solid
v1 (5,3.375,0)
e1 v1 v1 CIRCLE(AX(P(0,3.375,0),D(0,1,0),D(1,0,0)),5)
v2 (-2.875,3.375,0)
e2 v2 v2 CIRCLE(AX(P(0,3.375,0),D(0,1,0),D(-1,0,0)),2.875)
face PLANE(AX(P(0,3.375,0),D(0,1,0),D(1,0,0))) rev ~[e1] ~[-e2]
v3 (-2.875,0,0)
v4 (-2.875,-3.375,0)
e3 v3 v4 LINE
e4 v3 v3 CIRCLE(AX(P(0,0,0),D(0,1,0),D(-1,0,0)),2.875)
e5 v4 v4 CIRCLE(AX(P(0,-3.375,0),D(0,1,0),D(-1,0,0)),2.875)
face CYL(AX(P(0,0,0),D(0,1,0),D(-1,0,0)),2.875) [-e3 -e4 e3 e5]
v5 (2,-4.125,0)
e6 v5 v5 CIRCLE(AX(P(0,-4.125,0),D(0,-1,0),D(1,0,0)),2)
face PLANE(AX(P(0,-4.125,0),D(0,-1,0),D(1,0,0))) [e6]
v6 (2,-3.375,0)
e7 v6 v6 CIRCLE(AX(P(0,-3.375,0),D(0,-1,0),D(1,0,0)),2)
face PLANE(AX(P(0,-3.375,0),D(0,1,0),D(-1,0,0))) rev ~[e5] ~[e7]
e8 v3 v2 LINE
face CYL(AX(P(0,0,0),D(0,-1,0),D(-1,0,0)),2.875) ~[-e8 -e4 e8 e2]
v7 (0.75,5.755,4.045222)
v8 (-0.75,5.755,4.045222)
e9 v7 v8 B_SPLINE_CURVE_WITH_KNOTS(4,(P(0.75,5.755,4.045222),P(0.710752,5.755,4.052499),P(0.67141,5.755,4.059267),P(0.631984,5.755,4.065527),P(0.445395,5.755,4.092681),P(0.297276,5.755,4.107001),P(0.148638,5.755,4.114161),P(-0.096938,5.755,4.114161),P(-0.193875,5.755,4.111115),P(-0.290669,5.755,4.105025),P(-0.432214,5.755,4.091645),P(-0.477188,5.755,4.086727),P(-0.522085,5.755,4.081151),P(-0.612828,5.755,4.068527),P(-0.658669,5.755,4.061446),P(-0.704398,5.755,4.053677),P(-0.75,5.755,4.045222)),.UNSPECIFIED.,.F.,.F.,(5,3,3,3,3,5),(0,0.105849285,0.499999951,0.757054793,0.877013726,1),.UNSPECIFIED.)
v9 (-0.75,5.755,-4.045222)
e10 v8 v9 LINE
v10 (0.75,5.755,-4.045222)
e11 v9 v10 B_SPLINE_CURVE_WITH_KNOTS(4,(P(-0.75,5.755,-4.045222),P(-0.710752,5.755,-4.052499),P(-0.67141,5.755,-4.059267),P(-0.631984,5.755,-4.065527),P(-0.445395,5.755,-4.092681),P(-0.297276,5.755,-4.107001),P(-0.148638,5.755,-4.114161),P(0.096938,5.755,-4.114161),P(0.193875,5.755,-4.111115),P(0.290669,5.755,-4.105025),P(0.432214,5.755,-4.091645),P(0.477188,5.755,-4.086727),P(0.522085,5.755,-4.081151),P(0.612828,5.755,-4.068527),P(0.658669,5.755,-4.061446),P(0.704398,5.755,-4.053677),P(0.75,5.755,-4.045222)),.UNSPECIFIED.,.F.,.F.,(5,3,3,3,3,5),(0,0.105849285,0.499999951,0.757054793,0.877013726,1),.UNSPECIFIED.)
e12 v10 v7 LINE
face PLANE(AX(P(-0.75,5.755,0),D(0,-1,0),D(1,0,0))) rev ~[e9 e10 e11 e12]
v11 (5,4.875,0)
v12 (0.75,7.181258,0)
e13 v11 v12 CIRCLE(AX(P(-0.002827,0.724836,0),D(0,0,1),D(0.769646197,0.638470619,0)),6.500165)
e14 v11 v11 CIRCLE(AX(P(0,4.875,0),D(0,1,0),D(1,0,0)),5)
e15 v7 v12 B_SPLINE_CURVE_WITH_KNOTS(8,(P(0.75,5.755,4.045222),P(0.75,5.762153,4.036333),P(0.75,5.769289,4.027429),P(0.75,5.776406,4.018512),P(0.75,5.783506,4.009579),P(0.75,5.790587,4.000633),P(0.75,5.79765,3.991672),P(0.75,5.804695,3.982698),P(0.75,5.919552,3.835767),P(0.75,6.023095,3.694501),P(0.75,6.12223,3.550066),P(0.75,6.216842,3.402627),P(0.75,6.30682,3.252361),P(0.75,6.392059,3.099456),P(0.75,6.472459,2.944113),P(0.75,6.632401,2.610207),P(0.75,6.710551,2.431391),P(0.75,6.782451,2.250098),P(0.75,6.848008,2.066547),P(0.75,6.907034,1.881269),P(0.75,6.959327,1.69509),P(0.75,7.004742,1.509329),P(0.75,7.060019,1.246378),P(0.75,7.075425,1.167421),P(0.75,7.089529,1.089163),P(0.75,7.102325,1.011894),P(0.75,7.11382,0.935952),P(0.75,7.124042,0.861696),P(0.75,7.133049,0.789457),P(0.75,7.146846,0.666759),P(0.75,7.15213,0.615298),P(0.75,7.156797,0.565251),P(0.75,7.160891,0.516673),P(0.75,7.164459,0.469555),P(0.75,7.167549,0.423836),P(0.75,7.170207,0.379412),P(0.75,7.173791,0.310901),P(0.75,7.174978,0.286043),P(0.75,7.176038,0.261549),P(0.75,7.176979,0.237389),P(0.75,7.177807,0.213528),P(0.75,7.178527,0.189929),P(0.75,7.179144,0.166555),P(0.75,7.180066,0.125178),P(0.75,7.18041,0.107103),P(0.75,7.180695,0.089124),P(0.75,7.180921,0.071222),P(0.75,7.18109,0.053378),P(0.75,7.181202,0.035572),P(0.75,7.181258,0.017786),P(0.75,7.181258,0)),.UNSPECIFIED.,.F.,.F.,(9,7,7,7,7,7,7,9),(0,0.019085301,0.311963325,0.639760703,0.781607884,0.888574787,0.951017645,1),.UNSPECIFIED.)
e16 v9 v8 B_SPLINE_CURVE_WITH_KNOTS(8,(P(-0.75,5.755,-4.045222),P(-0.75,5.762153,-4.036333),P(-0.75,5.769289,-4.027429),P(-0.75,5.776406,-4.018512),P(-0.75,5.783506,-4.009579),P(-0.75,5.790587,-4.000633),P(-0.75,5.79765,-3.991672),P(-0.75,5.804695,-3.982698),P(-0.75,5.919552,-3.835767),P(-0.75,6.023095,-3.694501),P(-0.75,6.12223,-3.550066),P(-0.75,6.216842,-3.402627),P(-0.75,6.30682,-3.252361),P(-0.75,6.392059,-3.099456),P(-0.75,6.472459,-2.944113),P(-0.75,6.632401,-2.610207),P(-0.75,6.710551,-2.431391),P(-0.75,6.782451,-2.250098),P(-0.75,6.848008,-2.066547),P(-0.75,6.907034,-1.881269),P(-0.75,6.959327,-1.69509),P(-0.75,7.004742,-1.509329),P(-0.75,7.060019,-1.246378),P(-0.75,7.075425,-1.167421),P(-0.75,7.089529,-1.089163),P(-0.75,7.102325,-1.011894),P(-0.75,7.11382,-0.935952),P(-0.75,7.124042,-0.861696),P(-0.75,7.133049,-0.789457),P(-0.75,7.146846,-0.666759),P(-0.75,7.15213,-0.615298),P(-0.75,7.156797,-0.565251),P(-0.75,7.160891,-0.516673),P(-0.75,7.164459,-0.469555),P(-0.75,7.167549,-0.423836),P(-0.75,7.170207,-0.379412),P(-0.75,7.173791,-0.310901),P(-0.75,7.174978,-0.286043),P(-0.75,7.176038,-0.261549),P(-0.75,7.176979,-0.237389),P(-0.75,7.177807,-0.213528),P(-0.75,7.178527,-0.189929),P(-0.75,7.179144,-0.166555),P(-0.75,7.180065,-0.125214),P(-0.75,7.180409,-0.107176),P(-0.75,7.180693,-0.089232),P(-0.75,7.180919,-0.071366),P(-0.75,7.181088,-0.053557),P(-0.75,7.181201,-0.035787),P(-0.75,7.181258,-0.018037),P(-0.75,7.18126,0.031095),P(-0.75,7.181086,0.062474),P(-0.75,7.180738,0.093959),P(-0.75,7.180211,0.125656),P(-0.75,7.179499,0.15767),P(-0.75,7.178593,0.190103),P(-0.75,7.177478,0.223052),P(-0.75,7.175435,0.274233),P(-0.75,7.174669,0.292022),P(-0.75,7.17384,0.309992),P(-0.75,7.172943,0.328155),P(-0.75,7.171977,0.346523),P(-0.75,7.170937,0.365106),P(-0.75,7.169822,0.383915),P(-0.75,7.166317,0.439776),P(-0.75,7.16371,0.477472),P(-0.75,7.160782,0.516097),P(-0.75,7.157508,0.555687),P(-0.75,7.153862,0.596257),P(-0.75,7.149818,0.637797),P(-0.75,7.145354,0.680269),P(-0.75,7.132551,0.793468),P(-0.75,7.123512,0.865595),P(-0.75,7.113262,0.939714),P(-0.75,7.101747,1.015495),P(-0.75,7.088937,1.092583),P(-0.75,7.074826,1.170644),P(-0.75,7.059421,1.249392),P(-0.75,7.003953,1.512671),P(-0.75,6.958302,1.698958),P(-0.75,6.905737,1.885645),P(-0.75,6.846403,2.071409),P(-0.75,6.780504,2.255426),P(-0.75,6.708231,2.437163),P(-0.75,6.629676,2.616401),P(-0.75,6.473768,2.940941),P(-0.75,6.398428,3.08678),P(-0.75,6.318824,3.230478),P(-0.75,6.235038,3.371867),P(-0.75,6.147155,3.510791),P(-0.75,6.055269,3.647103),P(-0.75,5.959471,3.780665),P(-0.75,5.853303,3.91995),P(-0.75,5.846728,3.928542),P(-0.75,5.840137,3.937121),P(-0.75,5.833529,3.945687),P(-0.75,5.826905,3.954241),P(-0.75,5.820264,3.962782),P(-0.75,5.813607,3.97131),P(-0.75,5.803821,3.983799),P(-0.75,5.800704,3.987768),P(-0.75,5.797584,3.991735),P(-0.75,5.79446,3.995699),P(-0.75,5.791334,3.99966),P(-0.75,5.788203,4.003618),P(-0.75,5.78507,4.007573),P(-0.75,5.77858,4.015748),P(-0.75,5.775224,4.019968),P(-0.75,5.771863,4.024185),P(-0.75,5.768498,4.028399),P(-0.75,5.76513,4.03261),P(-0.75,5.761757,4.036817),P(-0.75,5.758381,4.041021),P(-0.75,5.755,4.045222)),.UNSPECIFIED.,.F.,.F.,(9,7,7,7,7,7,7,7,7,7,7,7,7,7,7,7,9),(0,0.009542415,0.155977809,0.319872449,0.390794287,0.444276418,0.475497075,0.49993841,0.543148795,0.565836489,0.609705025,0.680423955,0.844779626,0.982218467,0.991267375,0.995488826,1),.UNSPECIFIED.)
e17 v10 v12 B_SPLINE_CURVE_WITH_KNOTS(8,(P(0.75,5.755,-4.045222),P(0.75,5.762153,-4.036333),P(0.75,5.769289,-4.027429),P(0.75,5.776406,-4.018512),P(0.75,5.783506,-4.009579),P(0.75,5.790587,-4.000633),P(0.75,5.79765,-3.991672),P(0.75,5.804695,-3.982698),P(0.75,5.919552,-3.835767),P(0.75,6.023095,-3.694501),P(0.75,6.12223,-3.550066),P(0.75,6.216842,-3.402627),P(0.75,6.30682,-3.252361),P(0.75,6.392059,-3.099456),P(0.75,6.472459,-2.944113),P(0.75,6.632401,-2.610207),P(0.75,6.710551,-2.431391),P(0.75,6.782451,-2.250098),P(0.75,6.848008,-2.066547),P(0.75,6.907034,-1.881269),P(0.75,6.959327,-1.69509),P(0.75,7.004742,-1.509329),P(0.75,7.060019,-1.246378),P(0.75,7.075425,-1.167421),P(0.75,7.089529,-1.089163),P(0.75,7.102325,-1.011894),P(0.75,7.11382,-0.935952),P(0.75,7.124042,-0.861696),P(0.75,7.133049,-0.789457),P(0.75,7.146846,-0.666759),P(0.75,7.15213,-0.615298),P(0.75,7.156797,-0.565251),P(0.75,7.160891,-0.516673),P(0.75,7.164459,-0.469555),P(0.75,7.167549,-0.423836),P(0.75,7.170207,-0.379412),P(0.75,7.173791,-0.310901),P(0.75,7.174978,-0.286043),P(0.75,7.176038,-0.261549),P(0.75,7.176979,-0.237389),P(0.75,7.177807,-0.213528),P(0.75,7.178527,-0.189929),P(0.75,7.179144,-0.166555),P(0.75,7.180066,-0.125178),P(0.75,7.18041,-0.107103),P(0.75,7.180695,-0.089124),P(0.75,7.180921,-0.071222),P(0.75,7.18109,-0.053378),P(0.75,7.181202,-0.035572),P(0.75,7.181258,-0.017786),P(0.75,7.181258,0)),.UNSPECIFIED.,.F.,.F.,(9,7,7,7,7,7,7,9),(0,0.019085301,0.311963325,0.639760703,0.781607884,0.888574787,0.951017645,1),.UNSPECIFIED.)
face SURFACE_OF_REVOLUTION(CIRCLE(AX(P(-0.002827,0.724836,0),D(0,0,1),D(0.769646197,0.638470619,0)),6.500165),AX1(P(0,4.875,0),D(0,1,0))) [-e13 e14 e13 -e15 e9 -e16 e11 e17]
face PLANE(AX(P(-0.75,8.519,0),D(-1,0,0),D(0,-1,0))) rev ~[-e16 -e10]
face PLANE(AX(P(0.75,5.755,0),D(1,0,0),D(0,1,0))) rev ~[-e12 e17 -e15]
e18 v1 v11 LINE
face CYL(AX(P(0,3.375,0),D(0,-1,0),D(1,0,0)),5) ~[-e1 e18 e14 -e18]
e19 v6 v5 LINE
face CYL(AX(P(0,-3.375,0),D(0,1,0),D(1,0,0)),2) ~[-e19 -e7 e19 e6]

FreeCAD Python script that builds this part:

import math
import FreeCAD as App
import Part
import Sketcher

doc = App.newDocument("Part")
body = doc.addObject("PartDesign::Body", "Body")

# Sketch on XZ plane
sketch1 = doc.addObject("Sketcher::SketchObject", "Sketch")
body.addObject(sketch1)
sketch1.AttachmentSupport = (doc.XZ_Plane, [""])
sketch1.MapMode = "FlatFace"
sketch1.addGeometry(Part.Circle(App.Vector(0, 0, 0), App.Vector(0, 0, 1), 2.9), False)
sketch1.addConstraint([
    Sketcher.Constraint("Coincident", 0, 3, -1, 1),
    Sketcher.Constraint("Diameter", 0, 5.75),
])
pad1 = doc.addObject("PartDesign::Pad", "Pad")
body.addObject(pad1)
pad1.Profile = sketch1
pad1.Length = 6.75
pad1.Midplane = True

# Sketch on XZ plane
sketch2 = doc.addObject("Sketcher::SketchObject", "Sketch001")
body.addObject(sketch2)
sketch2.AttachmentSupport = (doc.XZ_Plane, [""])
sketch2.MapMode = "FlatFace"
sketch2.AttachmentOffset = App.Placement(App.Vector(0, 0, 3.375), App.Rotation())
sketch2.addGeometry(Part.Circle(App.Vector(0, 0, 0), App.Vector(0, 0, 1), 2), False)
sketch2.addConstraint([
    Sketcher.Constraint("Coincident", 0, 3, -1, 1),
    Sketcher.Constraint("Diameter", 0, 4.0),
])
pad2 = doc.addObject("PartDesign::Pad", "Pad001")
body.addObject(pad2)
pad2.Profile = sketch2
pad2.Length = 0.75

# Sketch on XZ plane
sketch3 = doc.addObject("Sketcher::SketchObject", "Sketch002")
body.addObject(sketch3)
sketch3.AttachmentSupport = (doc.XZ_Plane, [""])
sketch3.MapMode = "FlatFace"
sketch3.AttachmentOffset = App.Placement(App.Vector(0, 0, -3.375), App.Rotation())
sketch3.addGeometry(Part.Circle(App.Vector(0, 0, 0), App.Vector(0, 0, 1), 5), False)
sketch3.addConstraint([
    Sketcher.Constraint("Coincident", 0, 3, -1, 1),
    Sketcher.Constraint("Diameter", 0, 10.0),
])
pad3 = doc.addObject("PartDesign::Pad", "Pad002")
body.addObject(pad3)
pad3.Profile = sketch3
pad3.Length = 1.5
pad3.Reversed = True

# Sketch on XY plane
sketch4 = doc.addObject("Sketcher::SketchObject", "Sketch003")
body.addObject(sketch4)
sketch4.AttachmentSupport = (doc.XY_Plane, [""])
sketch4.MapMode = "FlatFace"
sketch4.addGeometry([
    Part.LineSegment(App.Vector(0, 4.9, 0), App.Vector(5, 4.9, 0)),
    Part.ArcOfCircle(Part.Circle(App.Vector(0, 0.7, 0), App.Vector(0, 0, 1), 6.5), math.radians(40), math.radians(90)),
    Part.LineSegment(App.Vector(0, 7.2, 0), App.Vector(0, 4.9, 0)),
], False)
sketch4.addConstraint([
    Sketcher.Constraint("Coincident", 0, 2, 1, 1),
    Sketcher.Constraint("Coincident", 1, 2, 2, 1),
    Sketcher.Constraint("Coincident", 2, 2, 0, 1),
    Sketcher.Constraint("Horizontal", 0),
    Sketcher.Constraint("Vertical", 2),
    Sketcher.Constraint("PointOnObject", 1, 2, -2),
    Sketcher.Constraint("Radius", 1, 6.5),
    Sketcher.Constraint("DistanceY", 2, 2, 2, 1, 2.35),
    Sketcher.Constraint("DistanceX", 0, 1, 0, 2, 5.0),
    Sketcher.Constraint("DistanceY", -1, 1, 1, 3, 0.725),
])
revolution = doc.addObject("PartDesign::Revolution", "Revolution")
body.addObject(revolution)
revolution.Profile = sketch4
revolution.ReferenceAxis = (sketch4, ["V_Axis"])
revolution.Angle = 360

# Sketch on XY plane
sketch5 = doc.addObject("Sketcher::SketchObject", "Sketch004")
body.addObject(sketch5)
sketch5.AttachmentSupport = (doc.XY_Plane, [""])
sketch5.MapMode = "FlatFace"
sketch5.addGeometry([
    Part.LineSegment(App.Vector(-0.8, 5.8, 0), App.Vector(0.8, 5.8, 0)),
    Part.LineSegment(App.Vector(0.8, 5.8, 0), App.Vector(0.8, 8.5, 0)),
    Part.LineSegment(App.Vector(0.8, 8.5, 0), App.Vector(-0.8, 8.5, 0)),
    Part.LineSegment(App.Vector(-0.8, 8.5, 0), App.Vector(-0.8, 5.8, 0)),
], False)
sketch5.addConstraint([
    Sketcher.Constraint("Coincident", 0, 2, 1, 1),
    Sketcher.Constraint("Coincident", 1, 2, 2, 1),
    Sketcher.Constraint("Coincident", 2, 2, 3, 1),
    Sketcher.Constraint("Coincident", 3, 2, 0, 1),
    Sketcher.Constraint("Horizontal", 0),
    Sketcher.Constraint("Vertical", 1),
    Sketcher.Constraint("Horizontal", 2),
    Sketcher.Constraint("Vertical", 3),
    Sketcher.Constraint("DistanceX", 0, 1, 0, 2, 1.5),
    Sketcher.Constraint("DistanceX", -1, 1, 0, 2, 0.75),
    Sketcher.Constraint("DistanceY", 1, 1, 1, 2, 2.764),
    Sketcher.Constraint("DistanceY", -1, 1, 0, 2, 5.755),
])
pocket1 = doc.addObject("PartDesign::Pocket", "Pocket")
body.addObject(pocket1)
pocket1.Profile = sketch5
pocket1.Length = 15
pocket1.Midplane = True

doc.recompute()
